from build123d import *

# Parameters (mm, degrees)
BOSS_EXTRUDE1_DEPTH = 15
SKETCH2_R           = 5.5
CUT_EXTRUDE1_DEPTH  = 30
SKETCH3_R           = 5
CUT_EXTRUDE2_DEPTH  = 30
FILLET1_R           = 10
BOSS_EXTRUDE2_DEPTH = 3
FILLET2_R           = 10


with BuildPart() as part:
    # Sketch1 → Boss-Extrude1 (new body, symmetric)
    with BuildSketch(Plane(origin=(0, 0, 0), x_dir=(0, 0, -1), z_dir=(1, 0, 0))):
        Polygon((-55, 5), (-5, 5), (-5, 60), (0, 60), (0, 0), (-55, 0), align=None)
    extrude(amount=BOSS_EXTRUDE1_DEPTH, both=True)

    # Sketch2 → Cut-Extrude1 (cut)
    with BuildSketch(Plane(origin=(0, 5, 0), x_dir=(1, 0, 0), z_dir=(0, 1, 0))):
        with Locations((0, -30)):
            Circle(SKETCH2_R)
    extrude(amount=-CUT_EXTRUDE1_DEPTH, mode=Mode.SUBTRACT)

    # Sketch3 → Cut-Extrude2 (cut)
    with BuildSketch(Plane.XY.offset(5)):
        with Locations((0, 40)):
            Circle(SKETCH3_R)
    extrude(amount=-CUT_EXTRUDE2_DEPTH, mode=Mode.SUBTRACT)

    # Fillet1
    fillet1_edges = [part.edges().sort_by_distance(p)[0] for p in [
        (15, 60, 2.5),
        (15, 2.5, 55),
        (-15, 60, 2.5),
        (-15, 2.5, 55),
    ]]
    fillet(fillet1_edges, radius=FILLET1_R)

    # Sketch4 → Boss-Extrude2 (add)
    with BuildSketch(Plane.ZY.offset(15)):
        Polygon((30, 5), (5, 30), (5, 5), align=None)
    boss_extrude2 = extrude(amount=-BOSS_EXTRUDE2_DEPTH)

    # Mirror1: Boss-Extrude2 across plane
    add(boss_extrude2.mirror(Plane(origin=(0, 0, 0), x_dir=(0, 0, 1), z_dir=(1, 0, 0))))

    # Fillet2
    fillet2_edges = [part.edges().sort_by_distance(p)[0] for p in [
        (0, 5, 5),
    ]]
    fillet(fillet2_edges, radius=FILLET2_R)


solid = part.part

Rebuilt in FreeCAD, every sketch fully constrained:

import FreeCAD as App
import Part
import Sketcher

V = App.Vector


def edges_at(feature, points):
    """Names of the edges that pass closest to the given points."""
    edges = feature.Shape.Edges
    near = lambda p: min(range(len(edges)), key=lambda i: edges[i].distToShape(Part.Vertex(*p))[0])
    return sorted({f"Edge{near(p) + 1}" for p in points})

doc = App.newDocument("Part")
body = doc.addObject("PartDesign::Body", "Body")

# Sketch on YZ plane
sketch1 = body.newObject("Sketcher::SketchObject", "Sketch")
sketch1.AttachmentSupport = (doc.getObject("YZ_Plane"), [""])
sketch1.MapMode = "FlatFace"
sketch1.addGeometry(Part.LineSegment(V(5, 5, 0), V(5, 55, 0)), False)
sketch1.addGeometry(Part.LineSegment(V(5, 55, 0), V(0, 55, 0)), False)
sketch1.addGeometry(Part.LineSegment(V(0, 55, 0), V(0, 0, 0)), False)
sketch1.addGeometry(Part.LineSegment(V(0, 0, 0), V(60, 0, 0)), False)
sketch1.addGeometry(Part.LineSegment(V(60, 0, 0), V(60, 5, 0)), False)
sketch1.addGeometry(Part.LineSegment(V(60, 5, 0), V(5, 5, 0)), False)
sketch1.addConstraint(Sketcher.Constraint("Coincident", 0, 2, 1, 1))
sketch1.addConstraint(Sketcher.Constraint("Coincident", 1, 2, 2, 1))
sketch1.addConstraint(Sketcher.Constraint("Coincident", 2, 2, 3, 1))
sketch1.addConstraint(Sketcher.Constraint("Coincident", 3, 2, 4, 1))
sketch1.addConstraint(Sketcher.Constraint("Coincident", 4, 2, 5, 1))
sketch1.addConstraint(Sketcher.Constraint("Coincident", 5, 2, 0, 1))
sketch1.addConstraint(Sketcher.Constraint("Vertical", 0))
sketch1.addConstraint(Sketcher.Constraint("Horizontal", 1))
sketch1.addConstraint(Sketcher.Constraint("Vertical", 2))
sketch1.addConstraint(Sketcher.Constraint("Horizontal", 3))
sketch1.addConstraint(Sketcher.Constraint("Vertical", 4))
sketch1.addConstraint(Sketcher.Constraint("Horizontal", 5))
sketch1.addConstraint(Sketcher.Constraint("Coincident", 2, 2, -1, 1))
sketch1.addConstraint(Sketcher.Constraint("Equal", 5, 2))
sketch1.addConstraint(Sketcher.Constraint("Equal", 1, 4))
sketch1.addConstraint(Sketcher.Constraint("DistanceX", 1, 2, 1, 1, 5.0))
sketch1.addConstraint(Sketcher.Constraint("DistanceX", 3, 1, 3, 2, 60.0))
pad1 = body.newObject("PartDesign::Pad", "Pad")
pad1.Profile = sketch1
pad1.Length = 30
pad1.Midplane = True

# Sketch on XZ plane
sketch2 = body.newObject("Sketcher::SketchObject", "Sketch001")
sketch2.AttachmentSupport = (doc.getObject("XZ_Plane"), [""])
sketch2.MapMode = "FlatFace"
sketch2.AttachmentOffset = App.Placement(V(0, 0, -5), App.Rotation())
sketch2.addGeometry(Part.Circle(V(0, 30, 0), V(0, 0, 1), 5.5), False)
sketch2.addConstraint(Sketcher.Constraint("PointOnObject", 0, 3, -2))
sketch2.addConstraint(Sketcher.Constraint("Diameter", 0, 11.0))
sketch2.addConstraint(Sketcher.Constraint("DistanceY", -1, 1, 0, 3, 30.0))
pocket1 = body.newObject("PartDesign::Pocket", "Pocket")
pocket1.Profile = sketch2
pocket1.Length = 30
pocket1.Reversed = True

# Sketch on XY plane
sketch3 = body.newObject("Sketcher::SketchObject", "Sketch002")
sketch3.AttachmentSupport = (doc.getObject("XY_Plane"), [""])
sketch3.MapMode = "FlatFace"
sketch3.AttachmentOffset = App.Placement(V(0, 0, 5), App.Rotation())
sketch3.addGeometry(Part.Circle(V(0, 40, 0), V(0, 0, 1), 5), False)
sketch3.addConstraint(Sketcher.Constraint("PointOnObject", 0, 3, -2))
sketch3.addConstraint(Sketcher.Constraint("Diameter", 0, 10.0))
sketch3.addConstraint(Sketcher.Constraint("DistanceY", -1, 1, 0, 3, 40.0))
pocket2 = body.newObject("PartDesign::Pocket", "Pocket001")
pocket2.Profile = sketch3
pocket2.Length = 30
doc.recompute()

fillet = body.newObject("PartDesign::Fillet", "Fillet")
fillet.Base = (pocket2, edges_at(pocket2, [
    (15, 60, 2.5),
    (15, 2.5, 55),
    (-15, 60, 2.5),
    (-15, 2.5, 55),
]))
fillet.Radius = 10

# Sketch on YZ plane
sketch4 = body.newObject("Sketcher::SketchObject", "Sketch003")
sketch4.AttachmentSupport = (doc.getObject("YZ_Plane"), [""])
sketch4.MapMode = "FlatFace"
sketch4.AttachmentOffset = App.Placement(V(0, 0, -15), App.Rotation())
sketch4.addGeometry(Part.LineSegment(V(5, 30, 0), V(30, 5, 0)), False)
sketch4.addGeometry(Part.LineSegment(V(30, 5, 0), V(5, 5, 0)), False)
sketch4.addGeometry(Part.LineSegment(V(5, 5, 0), V(5, 30, 0)), False)
sketch4.addConstraint(Sketcher.Constraint("Coincident", 0, 2, 1, 1))
sketch4.addConstraint(Sketcher.Constraint("Coincident", 1, 2, 2, 1))
sketch4.addConstraint(Sketcher.Constraint("Coincident", 2, 2, 0, 1))
sketch4.addConstraint(Sketcher.Constraint("Horizontal", 1))
sketch4.addConstraint(Sketcher.Constraint("Vertical", 2))
sketch4.addConstraint(Sketcher.Constraint("Equal", 1, 2))
sketch4.addConstraint(Sketcher.Constraint("DistanceX", 1, 2, 1, 1, 25.0))
sketch4.addConstraint(Sketcher.Constraint("DistanceX", -1, 1, 0, 2, 30.0))
sketch4.addConstraint(Sketcher.Constraint("DistanceY", -1, 1, 0, 2, 5.0))
pad2 = body.newObject("PartDesign::Pad", "Pad001")
pad2.Profile = sketch4
pad2.Length = 3
doc.recompute()

mirrored = body.newObject("PartDesign::Mirrored", "Mirrored")
mirrored.Originals = [pad2]
mirrored.MirrorPlane = (doc.getObject("YZ_Plane"), [""])
body.Tip = mirrored
doc.recompute()

fillet2 = body.newObject("PartDesign::Fillet", "Fillet001")
fillet2.Base = (mirrored, edges_at(mirrored, [(0, 5, 5)]))
fillet2.Radius = 10

doc.recompute()
